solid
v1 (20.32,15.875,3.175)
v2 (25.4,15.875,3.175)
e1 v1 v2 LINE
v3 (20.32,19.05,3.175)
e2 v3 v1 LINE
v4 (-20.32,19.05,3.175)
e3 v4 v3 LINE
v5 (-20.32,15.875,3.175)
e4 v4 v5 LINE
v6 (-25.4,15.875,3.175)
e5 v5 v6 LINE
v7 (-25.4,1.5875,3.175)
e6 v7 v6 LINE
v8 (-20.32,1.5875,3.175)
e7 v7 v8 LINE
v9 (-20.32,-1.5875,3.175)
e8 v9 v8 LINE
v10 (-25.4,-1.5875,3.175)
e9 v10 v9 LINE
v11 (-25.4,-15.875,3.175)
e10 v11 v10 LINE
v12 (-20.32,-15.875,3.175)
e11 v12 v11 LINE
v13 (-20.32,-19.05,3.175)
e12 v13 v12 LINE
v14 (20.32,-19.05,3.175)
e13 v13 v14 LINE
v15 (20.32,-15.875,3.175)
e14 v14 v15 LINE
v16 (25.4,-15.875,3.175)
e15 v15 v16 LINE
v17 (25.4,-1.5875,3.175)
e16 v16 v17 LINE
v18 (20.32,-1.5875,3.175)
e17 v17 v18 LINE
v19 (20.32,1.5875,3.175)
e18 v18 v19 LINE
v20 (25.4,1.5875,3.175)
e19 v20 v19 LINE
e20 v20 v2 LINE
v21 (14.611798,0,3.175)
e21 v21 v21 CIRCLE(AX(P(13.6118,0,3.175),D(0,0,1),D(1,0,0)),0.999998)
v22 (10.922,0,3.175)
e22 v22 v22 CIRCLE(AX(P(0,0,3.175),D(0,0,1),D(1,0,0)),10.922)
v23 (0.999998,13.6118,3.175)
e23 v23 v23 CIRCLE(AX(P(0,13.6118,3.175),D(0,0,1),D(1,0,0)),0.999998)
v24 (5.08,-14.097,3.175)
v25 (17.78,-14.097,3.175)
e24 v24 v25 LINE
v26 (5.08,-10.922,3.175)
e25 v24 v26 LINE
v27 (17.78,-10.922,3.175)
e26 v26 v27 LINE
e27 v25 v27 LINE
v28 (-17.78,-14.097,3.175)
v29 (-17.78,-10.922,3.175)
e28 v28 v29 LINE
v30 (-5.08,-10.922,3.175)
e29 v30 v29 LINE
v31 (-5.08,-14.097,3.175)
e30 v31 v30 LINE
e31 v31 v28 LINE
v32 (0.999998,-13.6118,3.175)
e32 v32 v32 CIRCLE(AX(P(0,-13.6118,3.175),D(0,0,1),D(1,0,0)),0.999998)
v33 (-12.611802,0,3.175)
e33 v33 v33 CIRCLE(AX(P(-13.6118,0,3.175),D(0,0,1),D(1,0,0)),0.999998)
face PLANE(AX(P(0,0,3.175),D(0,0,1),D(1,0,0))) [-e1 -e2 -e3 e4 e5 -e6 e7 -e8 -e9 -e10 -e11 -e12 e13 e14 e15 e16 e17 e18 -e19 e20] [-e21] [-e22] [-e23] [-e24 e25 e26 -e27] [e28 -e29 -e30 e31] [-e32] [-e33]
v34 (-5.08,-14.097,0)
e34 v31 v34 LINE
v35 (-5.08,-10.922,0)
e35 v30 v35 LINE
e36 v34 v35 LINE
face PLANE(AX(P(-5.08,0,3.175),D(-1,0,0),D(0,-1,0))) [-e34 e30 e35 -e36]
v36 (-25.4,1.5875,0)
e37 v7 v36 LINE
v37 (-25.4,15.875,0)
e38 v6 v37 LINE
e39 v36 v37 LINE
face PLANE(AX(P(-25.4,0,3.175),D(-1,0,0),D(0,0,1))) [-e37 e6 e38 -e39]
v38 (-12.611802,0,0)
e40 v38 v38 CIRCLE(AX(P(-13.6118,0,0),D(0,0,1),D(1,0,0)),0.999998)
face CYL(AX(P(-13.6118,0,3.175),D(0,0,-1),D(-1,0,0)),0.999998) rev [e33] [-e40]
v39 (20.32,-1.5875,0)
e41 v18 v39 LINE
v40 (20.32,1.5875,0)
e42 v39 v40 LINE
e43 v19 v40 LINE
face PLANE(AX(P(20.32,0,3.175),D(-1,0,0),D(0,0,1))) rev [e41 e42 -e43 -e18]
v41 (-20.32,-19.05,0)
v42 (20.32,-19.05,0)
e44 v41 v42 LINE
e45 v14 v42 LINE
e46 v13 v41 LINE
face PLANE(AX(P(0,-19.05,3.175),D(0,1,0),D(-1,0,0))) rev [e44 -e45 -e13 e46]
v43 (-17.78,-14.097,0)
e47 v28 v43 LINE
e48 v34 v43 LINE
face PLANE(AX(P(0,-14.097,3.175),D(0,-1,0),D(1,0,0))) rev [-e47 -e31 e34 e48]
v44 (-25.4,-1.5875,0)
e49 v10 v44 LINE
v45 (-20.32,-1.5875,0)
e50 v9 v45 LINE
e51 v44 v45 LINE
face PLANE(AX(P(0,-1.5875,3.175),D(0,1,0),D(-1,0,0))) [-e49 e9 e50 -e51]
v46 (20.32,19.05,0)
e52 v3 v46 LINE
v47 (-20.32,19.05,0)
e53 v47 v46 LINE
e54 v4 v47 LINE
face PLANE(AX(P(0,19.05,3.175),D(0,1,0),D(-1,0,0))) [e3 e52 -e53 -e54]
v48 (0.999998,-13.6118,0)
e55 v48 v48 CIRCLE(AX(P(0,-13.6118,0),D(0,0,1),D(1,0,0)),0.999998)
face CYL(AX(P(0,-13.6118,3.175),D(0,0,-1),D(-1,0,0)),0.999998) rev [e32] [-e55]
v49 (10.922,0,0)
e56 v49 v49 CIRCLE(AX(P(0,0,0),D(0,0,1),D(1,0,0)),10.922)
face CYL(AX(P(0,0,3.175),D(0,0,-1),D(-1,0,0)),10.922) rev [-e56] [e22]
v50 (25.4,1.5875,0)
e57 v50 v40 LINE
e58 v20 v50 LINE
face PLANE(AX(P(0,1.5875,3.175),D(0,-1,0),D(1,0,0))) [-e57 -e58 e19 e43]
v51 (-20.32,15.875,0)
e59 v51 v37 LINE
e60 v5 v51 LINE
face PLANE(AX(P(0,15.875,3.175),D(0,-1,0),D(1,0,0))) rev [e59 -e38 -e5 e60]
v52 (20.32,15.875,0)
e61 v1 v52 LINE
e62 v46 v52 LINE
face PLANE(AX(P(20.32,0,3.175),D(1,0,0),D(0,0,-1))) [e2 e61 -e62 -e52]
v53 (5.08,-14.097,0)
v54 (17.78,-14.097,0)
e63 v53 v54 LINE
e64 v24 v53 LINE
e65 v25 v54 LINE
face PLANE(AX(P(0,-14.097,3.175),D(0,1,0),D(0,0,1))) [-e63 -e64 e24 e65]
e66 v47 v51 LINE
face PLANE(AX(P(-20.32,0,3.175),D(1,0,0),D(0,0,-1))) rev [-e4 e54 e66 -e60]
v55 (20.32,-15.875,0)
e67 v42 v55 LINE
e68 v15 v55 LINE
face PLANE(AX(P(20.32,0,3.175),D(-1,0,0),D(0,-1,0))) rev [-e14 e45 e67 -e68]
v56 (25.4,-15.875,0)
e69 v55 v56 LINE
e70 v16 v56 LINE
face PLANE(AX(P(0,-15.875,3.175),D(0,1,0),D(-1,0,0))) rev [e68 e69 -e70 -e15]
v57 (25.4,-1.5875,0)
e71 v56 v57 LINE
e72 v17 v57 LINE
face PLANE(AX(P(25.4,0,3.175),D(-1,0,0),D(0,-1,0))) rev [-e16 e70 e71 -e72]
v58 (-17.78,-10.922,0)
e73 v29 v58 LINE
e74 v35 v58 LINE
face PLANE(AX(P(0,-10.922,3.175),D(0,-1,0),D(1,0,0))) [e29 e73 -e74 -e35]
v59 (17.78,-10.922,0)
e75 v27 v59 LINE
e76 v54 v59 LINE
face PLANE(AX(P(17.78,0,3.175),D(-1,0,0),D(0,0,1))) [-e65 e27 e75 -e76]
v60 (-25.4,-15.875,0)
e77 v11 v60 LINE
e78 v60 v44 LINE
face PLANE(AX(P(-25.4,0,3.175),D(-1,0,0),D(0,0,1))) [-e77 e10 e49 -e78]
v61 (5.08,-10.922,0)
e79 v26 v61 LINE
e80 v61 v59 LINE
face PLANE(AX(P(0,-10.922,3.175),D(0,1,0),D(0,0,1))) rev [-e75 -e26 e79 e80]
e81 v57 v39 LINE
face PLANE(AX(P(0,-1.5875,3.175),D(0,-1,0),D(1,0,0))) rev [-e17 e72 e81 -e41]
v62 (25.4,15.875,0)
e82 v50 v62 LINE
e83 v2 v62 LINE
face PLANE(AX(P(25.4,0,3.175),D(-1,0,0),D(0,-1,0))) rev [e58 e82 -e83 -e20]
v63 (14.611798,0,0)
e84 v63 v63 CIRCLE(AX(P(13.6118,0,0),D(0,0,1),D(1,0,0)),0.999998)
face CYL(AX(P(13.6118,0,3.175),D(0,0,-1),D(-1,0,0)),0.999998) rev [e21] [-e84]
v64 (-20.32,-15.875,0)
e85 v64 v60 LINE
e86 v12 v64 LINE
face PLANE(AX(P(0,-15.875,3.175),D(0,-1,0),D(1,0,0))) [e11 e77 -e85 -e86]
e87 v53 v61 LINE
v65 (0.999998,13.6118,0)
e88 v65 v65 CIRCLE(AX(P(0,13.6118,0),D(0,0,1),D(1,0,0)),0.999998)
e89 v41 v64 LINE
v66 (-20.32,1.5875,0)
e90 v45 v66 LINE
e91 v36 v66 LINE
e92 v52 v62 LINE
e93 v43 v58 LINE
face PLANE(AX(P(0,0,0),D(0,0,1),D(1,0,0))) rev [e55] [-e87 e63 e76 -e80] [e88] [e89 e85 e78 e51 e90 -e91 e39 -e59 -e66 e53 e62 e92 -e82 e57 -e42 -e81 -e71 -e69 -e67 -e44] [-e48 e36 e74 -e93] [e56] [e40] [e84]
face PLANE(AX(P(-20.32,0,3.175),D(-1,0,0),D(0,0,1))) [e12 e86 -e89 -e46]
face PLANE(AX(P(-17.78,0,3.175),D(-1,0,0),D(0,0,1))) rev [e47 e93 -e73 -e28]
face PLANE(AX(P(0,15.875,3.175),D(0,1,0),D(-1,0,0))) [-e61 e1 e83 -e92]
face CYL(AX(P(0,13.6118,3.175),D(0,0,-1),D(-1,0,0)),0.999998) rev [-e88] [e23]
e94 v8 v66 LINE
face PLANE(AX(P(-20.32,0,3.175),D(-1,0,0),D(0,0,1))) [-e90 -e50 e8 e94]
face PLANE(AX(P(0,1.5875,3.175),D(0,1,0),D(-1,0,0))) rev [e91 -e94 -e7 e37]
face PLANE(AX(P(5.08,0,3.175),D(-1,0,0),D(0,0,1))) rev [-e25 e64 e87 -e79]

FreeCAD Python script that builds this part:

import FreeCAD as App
import Part
import Sketcher
from FreeCAD import Vector
Q = App.Units.Quantity


def add_polygon(sketch, points):
    """Adds a closed chain of lines whose ends are joined by coincident constraints."""
    first, n = sketch.GeometryCount, len(points)
    for a, b in zip(points, points[1:] + points[:1]):
        sketch.addGeometry(Part.LineSegment(App.Vector(*a, 0), App.Vector(*b, 0)), False)
    for i in range(n):
        sketch.addConstraint(Sketcher.Constraint("Coincident", first + i, 2, first + (i + 1) % n, 1))

doc = App.newDocument("Part")
body = doc.addObject("PartDesign::Body", "Body")

# Sketch on XY plane
sketch1 = body.newObject("Sketcher::SketchObject", "Sketch")
sketch1.AttachmentSupport = (doc.getObject("XY_Plane"), [""])
sketch1.MapMode = "FlatFace"
add_polygon(sketch1, [(-20.3, -15.9), (-20.3, -19.1), (20.3, -19.1), (20.3, -15.9), (25.4, -15.9), (25.4, -1.6), (20.3, -1.6), (20.3, 1.6), (25.4, 1.6), (25.4, 15.9), (20.3, 15.9), (20.3, 19.1), (-20.3, 19.1), (-20.3, 15.9), (-25.4, 15.9), (-25.4, 1.6), (-20.3, 1.6), (-20.3, -1.6), (-25.4, -1.6), (-25.4, -15.9)])  # lines 0-19
add_polygon(sketch1, [(-5.1, -14.1), (-17.8, -14.1), (-17.8, -10.9), (-5.1, -10.9)])  # lines 20-23
sketch1.addGeometry(Part.Circle(Vector(0, -13.6, 0), Vector(0, 0, 1), 1), False)  # 24
add_polygon(sketch1, [(17.8, -14.1), (5.1, -14.1), (5.1, -10.9), (17.8, -10.9)])  # lines 25-28
sketch1.addGeometry(Part.Circle(Vector(-13.6, 0, 0), Vector(0, 0, 1), 1), False)  # 29
sketch1.addGeometry(Part.Circle(Vector(0, 0, 0), Vector(0, 0, 1), 10.9), False)  # 30
sketch1.addGeometry(Part.Circle(Vector(0, 13.6, 0), Vector(0, 0, 1), 1), False)  # 31
sketch1.addGeometry(Part.Circle(Vector(13.6, 0, 0), Vector(0, 0, 1), 1), False)  # 32
sketch1.addConstraint(Sketcher.Constraint("Vertical", 0))
sketch1.addConstraint(Sketcher.Constraint("Horizontal", 1))
sketch1.addConstraint(Sketcher.Constraint("Vertical", 2))
sketch1.addConstraint(Sketcher.Constraint("Horizontal", 3))
sketch1.addConstraint(Sketcher.Constraint("Vertical", 4))
sketch1.addConstraint(Sketcher.Constraint("Horizontal", 5))
sketch1.addConstraint(Sketcher.Constraint("Vertical", 6))
sketch1.addConstraint(Sketcher.Constraint("Horizontal", 7))
sketch1.addConstraint(Sketcher.Constraint("Vertical", 8))
sketch1.addConstraint(Sketcher.Constraint("Horizontal", 9))
sketch1.addConstraint(Sketcher.Constraint("Vertical", 10))
sketch1.addConstraint(Sketcher.Constraint("Horizontal", 11))
sketch1.addConstraint(Sketcher.Constraint("Vertical", 12))
sketch1.addConstraint(Sketcher.Constraint("Horizontal", 13))
sketch1.addConstraint(Sketcher.Constraint("Vertical", 14))
sketch1.addConstraint(Sketcher.Constraint("Horizontal", 15))
sketch1.addConstraint(Sketcher.Constraint("Vertical", 16))
sketch1.addConstraint(Sketcher.Constraint("Horizontal", 17))
sketch1.addConstraint(Sketcher.Constraint("Vertical", 18))
sketch1.addConstraint(Sketcher.Constraint("Horizontal", 19))
sketch1.addConstraint(Sketcher.Constraint("Horizontal", 20))
sketch1.addConstraint(Sketcher.Constraint("Vertical", 21))
sketch1.addConstraint(Sketcher.Constraint("Horizontal", 22))
sketch1.addConstraint(Sketcher.Constraint("Vertical", 23))
sketch1.addConstraint(Sketcher.Constraint("Horizontal", 25))
sketch1.addConstraint(Sketcher.Constraint("Vertical", 26))
sketch1.addConstraint(Sketcher.Constraint("Horizontal", 27))
sketch1.addConstraint(Sketcher.Constraint("Vertical", 28))
sketch1.addConstraint(Sketcher.Constraint("Coincident", 30, 3, -1, 1))
sketch1.addConstraint(Sketcher.Constraint("Equal", 24, 29))
sketch1.addConstraint(Sketcher.Constraint("Equal", 29, 31))
sketch1.addConstraint(Sketcher.Constraint("Equal", 31, 32))
sketch1.addConstraint(Sketcher.Constraint("Symmetric", 24, 3, 31, 3, -1, 1))
sketch1.addConstraint(Sketcher.Constraint("Symmetric", 29, 3, 32, 3, -1, 1))
sketch1.addConstraint(Sketcher.Constraint("Symmetric", 0, 2, 10, 2, -1, 1))
sketch1.addConstraint(Sketcher.Constraint("Symmetric", 2, 2, 12, 2, -1, 1))
sketch1.addConstraint(Sketcher.Constraint("Symmetric", 4, 2, 14, 2, -1, 1))
sketch1.addConstraint(Sketcher.Constraint("Symmetric", 6, 2, 16, 2, -1, 1))
sketch1.addConstraint(Sketcher.Constraint("Symmetric", 8, 2, 18, 2, -1, 1))
sketch1.addConstraint(Sketcher.Constraint("Symmetric", 9, 2, 12, 2, -2))
sketch1.addConstraint(Sketcher.Constraint("Symmetric", 7, 2, 14, 2, -2))
sketch1.addConstraint(Sketcher.Constraint("Symmetric", 23, 2, 25, 2, -2))
sketch1.addConstraint(Sketcher.Constraint("Symmetric", 21, 2, 27, 2, -2))
sketch1.addConstraint(Sketcher.Constraint("PointOnObject", 24, 3, -2))
sketch1.addConstraint(Sketcher.Constraint("PointOnObject", 29, 3, -1))
sketch1.addConstraint(Sketcher.Constraint("Vertical", 2, 2, 5, 2))
sketch1.addConstraint(Sketcher.Constraint("Equal", 2, 6))
sketch1.addConstraint(Sketcher.Constraint("Equal", 16, 21))
sketch1.addConstraint(Sketcher.Constraint("Diameter", 30, Q("0.86 in")))
sketch1.addConstraint(Sketcher.Constraint("DistanceX", 1, 1, 1, 2, Q("1.6 in")))
sketch1.addConstraint(Sketcher.Constraint("DistanceX", 3, 1, 3, 2, Q("0.2 in")))
sketch1.addConstraint(Sketcher.Constraint("DistanceX", 20, 2, 20, 1, Q("0.5 in")))
sketch1.addConstraint(Sketcher.Constraint("DistanceX", 20, 2, -1, 1, Q("0.7 in")))
sketch1.addConstraint(Sketcher.Constraint("DistanceY", 0, 2, 11, 2, Q("1.5 in")))
sketch1.addConstraint(Sketcher.Constraint("DistanceY", 0, 2, 0, 1, Q("0.125 in")))
sketch1.addConstraint(Sketcher.Constraint("DistanceY", 21, 2, -1, 1, Q("0.43 in")))
sketch1.addConstraint(Sketcher.Constraint("Diameter", 24, 1.999996))
sketch1.addConstraint(Sketcher.Constraint("DistanceY", 24, 3, -1, 1, 13.6118))
sketch1.addConstraint(Sketcher.Constraint("DistanceX", 29, 3, -1, 1, 13.6118))
pad1 = body.newObject("PartDesign::Pad", "Pad")
pad1.Profile = sketch1
pad1.Length = Q("0.125 in")

doc.recompute()
